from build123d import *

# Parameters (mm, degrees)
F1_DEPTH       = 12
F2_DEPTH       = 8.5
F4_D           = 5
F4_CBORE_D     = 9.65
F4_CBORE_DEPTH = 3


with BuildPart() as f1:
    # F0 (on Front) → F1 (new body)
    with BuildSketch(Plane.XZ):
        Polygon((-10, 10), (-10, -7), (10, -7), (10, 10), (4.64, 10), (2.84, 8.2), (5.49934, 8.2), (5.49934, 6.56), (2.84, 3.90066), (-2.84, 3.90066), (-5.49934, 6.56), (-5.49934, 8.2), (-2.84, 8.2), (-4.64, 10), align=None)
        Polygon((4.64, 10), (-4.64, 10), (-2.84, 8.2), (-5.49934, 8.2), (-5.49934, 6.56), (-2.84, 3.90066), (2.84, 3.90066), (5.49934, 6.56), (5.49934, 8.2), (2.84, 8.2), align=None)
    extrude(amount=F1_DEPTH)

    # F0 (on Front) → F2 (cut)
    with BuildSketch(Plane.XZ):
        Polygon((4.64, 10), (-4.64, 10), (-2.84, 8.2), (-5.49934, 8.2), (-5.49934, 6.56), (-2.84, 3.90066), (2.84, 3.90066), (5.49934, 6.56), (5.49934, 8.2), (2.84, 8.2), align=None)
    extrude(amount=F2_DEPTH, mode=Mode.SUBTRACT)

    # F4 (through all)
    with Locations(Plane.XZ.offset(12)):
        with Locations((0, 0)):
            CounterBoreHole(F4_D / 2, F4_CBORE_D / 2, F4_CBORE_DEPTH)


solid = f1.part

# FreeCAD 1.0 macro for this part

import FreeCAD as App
import Part
import Sketcher
Q = App.Units.Quantity

doc = App.newDocument("Part")
body = doc.addObject("PartDesign::Body", "Body")

# Sketch on XZ plane
sketch1 = doc.addObject("Sketcher::SketchObject", "Sketch")
body.addObject(sketch1)
sketch1.AttachmentSupport = (doc.XZ_Plane, [""])
sketch1.MapMode = "FlatFace"
sketch1.addGeometry([
    Part.LineSegment(App.Vector(-10, 10, 0), App.Vector(-10, -7, 0)),
    Part.LineSegment(App.Vector(-10, -7, 0), App.Vector(10, -7, 0)),
    Part.LineSegment(App.Vector(10, -7, 0), App.Vector(10, 10, 0)),
    Part.LineSegment(App.Vector(10, 10, 0), App.Vector(-10, 10, 0)),
], False)
sketch1.addConstraint([
    Sketcher.Constraint("Coincident", 0, 2, 1, 1),
    Sketcher.Constraint("Coincident", 1, 2, 2, 1),
    Sketcher.Constraint("Coincident", 2, 2, 3, 1),
    Sketcher.Constraint("Coincident", 3, 2, 0, 1),
    Sketcher.Constraint("Vertical", 0),
    Sketcher.Constraint("Horizontal", 1),
    Sketcher.Constraint("Vertical", 2),
    Sketcher.Constraint("Horizontal", 3),
    Sketcher.Constraint("DistanceX", 1, 1, 1, 2, Q("20 mm")),
    Sketcher.Constraint("DistanceY", 0, 2, 0, 1, Q("17 mm")),
    Sketcher.Constraint("DistanceX", 0, 2, -1, 1, Q("10 mm")),
    Sketcher.Constraint("DistanceY", 0, 2, -1, 1, Q("7 mm")),
])
pad1 = doc.addObject("PartDesign::Pad", "Pad")
body.addObject(pad1)
pad1.Profile = sketch1
pad1.Length = 12

# Sketch on XZ plane
sketch2 = doc.addObject("Sketcher::SketchObject", "Sketch001")
body.addObject(sketch2)
sketch2.AttachmentSupport = (doc.XZ_Plane, [""])
sketch2.MapMode = "FlatFace"
sketch2.addGeometry([
    Part.LineSegment(App.Vector(4.64, 10, 0), App.Vector(-4.64, 10, 0)),  # 0
    Part.LineSegment(App.Vector(-4.64, 10, 0), App.Vector(-2.84, 8.2, 0)),  # 1
    Part.LineSegment(App.Vector(-2.84, 8.2, 0), App.Vector(-5.49934, 8.2, 0)),  # 2
    Part.LineSegment(App.Vector(-5.49934, 8.2, 0), App.Vector(-5.49934, 6.56, 0)),  # 3
    Part.LineSegment(App.Vector(-5.49934, 6.56, 0), App.Vector(-2.84, 3.90066, 0)),  # 4
    Part.LineSegment(App.Vector(-2.84, 3.90066, 0), App.Vector(2.84, 3.90066, 0)),  # 5
    Part.LineSegment(App.Vector(2.84, 3.90066, 0), App.Vector(5.49934, 6.56, 0)),  # 6
    Part.LineSegment(App.Vector(5.49934, 6.56, 0), App.Vector(5.49934, 8.2, 0)),  # 7
    Part.LineSegment(App.Vector(5.49934, 8.2, 0), App.Vector(2.84, 8.2, 0)),  # 8
    Part.LineSegment(App.Vector(2.84, 8.2, 0), App.Vector(4.64, 10, 0)),  # 9
], False)
sketch2.addConstraint([
    Sketcher.Constraint("Coincident", 0, 2, 1, 1),
    Sketcher.Constraint("Coincident", 1, 2, 2, 1),
    Sketcher.Constraint("Coincident", 2, 2, 3, 1),
    Sketcher.Constraint("Coincident", 3, 2, 4, 1),
    Sketcher.Constraint("Coincident", 4, 2, 5, 1),
    Sketcher.Constraint("Coincident", 5, 2, 6, 1),
    Sketcher.Constraint("Coincident", 6, 2, 7, 1),
    Sketcher.Constraint("Coincident", 7, 2, 8, 1),
    Sketcher.Constraint("Coincident", 8, 2, 9, 1),
    Sketcher.Constraint("Coincident", 9, 2, 0, 1),
    Sketcher.Constraint("Horizontal", 0),
    Sketcher.Constraint("Horizontal", 2),
    Sketcher.Constraint("Vertical", 3),
    Sketcher.Constraint("Horizontal", 5),
    Sketcher.Constraint("Vertical", 7),
    Sketcher.Constraint("Horizontal", 8),
    Sketcher.Constraint("Symmetric", 3, 2, 6, 2, -2),
    Sketcher.Constraint("Symmetric", 1, 2, 8, 2, -2),
    Sketcher.Constraint("Parallel", 1, 4),
    Sketcher.Constraint("Perpendicular", 4, 6),
    Sketcher.Constraint("Parallel", 6, 9),
    Sketcher.Constraint("Vertical", 1, 2, 4, 2),
    Sketcher.Constraint("Vertical", 5, 2, 8, 2),
    Sketcher.Constraint("DistanceY", -1, 1, 0, 2, Q("10 mm")),
    Sketcher.Constraint("DistanceX", 0, 2, 0, 1, Q("9.28 mm")),
    Sketcher.Constraint("DistanceX", 5, 1, 5, 2, Q("5.68 mm")),
    Sketcher.Constraint("DistanceY", 3, 2, 3, 1, Q("1.64 mm")),
    Sketcher.Constraint("DistanceX", 2, 2, 2, 1, Q("2.65934 mm")),
])
pocket1 = doc.addObject("PartDesign::Pocket", "Pocket")
body.addObject(pocket1)
pocket1.Profile = sketch2
pocket1.Length = 8.5
pocket1.Reversed = True

# Sketch on XZ plane
sketch3 = doc.addObject("Sketcher::SketchObject", "Sketch002")
body.addObject(sketch3)
sketch3.AttachmentSupport = (doc.XZ_Plane, [""])
sketch3.MapMode = "FlatFace"
sketch3.AttachmentOffset = App.Placement(App.Vector(0, 0, 12), App.Rotation())
sketch3.addGeometry(Part.Circle(App.Vector(0, 0, 0), App.Vector(0, 0, 1), 2.5), False)
sketch3.addConstraint([
    Sketcher.Constraint("Coincident", 0, 3, -1, 1),
    Sketcher.Constraint("Diameter", 0, Q("5 mm")),
])
doc.recompute()
hole = doc.addObject("PartDesign::Hole", "Hole")
body.addObject(hole)
hole.Profile = sketch3
hole.ThreadType = "None"
hole.Diameter = 5
hole.DepthType = "ThroughAll"
hole.HoleCutType = "Counterbore"
hole.HoleCutDiameter = 9.65
hole.HoleCutDepth = 3

doc.recompute()
